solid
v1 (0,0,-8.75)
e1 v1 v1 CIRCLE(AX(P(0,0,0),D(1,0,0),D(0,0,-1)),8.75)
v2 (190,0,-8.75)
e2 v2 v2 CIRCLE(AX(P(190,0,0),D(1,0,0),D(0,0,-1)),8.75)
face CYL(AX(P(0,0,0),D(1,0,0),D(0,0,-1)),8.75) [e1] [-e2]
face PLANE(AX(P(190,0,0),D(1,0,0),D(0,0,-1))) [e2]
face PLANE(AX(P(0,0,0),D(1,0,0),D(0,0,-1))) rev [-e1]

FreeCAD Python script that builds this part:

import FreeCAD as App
import Part
import Sketcher
Q = App.Units.Quantity

doc = App.newDocument("Part")
body = doc.addObject("PartDesign::Body", "Body")

# Sketch on YZ plane
sketch1 = body.newObject("Sketcher::SketchObject", "Sketch")
sketch1.AttachmentSupport = (doc.getObject("YZ_Plane"), [""])
sketch1.MapMode = "FlatFace"
sketch1.addGeometry(Part.Circle(App.Vector(0, 0, 0), App.Vector(0, 0, 1), 9), False)
sketch1.addConstraint(Sketcher.Constraint("Coincident", 0, 3, -1, 1))
sketch1.addConstraint(Sketcher.Constraint("Diameter", 0, Q("17.5 mm")))

# Sketch on XY plane
sketch2 = body.newObject("Sketcher::SketchObject", "Sketch001")
sketch2.AttachmentSupport = (doc.getObject("XY_Plane"), [""])
sketch2.MapMode = "FlatFace"
sketch2.addGeometry(Part.LineSegment(App.Vector(0, 0, 0), App.Vector(190, 0, 0)), False)
sketch2.addConstraint(Sketcher.Constraint("Horizontal", 0))
sketch2.addConstraint(Sketcher.Constraint("Coincident", 0, 1, -1, 1))
sketch2.addConstraint(Sketcher.Constraint("DistanceX", 0, 1, 0, 2, Q("190 mm")))
doc.recompute()

additivepipe = body.newObject("PartDesign::AdditivePipe", "AdditivePipe")
additivepipe.Profile = sketch1
additivepipe.Spine = (sketch2, ["Edge1"])

doc.recompute()
